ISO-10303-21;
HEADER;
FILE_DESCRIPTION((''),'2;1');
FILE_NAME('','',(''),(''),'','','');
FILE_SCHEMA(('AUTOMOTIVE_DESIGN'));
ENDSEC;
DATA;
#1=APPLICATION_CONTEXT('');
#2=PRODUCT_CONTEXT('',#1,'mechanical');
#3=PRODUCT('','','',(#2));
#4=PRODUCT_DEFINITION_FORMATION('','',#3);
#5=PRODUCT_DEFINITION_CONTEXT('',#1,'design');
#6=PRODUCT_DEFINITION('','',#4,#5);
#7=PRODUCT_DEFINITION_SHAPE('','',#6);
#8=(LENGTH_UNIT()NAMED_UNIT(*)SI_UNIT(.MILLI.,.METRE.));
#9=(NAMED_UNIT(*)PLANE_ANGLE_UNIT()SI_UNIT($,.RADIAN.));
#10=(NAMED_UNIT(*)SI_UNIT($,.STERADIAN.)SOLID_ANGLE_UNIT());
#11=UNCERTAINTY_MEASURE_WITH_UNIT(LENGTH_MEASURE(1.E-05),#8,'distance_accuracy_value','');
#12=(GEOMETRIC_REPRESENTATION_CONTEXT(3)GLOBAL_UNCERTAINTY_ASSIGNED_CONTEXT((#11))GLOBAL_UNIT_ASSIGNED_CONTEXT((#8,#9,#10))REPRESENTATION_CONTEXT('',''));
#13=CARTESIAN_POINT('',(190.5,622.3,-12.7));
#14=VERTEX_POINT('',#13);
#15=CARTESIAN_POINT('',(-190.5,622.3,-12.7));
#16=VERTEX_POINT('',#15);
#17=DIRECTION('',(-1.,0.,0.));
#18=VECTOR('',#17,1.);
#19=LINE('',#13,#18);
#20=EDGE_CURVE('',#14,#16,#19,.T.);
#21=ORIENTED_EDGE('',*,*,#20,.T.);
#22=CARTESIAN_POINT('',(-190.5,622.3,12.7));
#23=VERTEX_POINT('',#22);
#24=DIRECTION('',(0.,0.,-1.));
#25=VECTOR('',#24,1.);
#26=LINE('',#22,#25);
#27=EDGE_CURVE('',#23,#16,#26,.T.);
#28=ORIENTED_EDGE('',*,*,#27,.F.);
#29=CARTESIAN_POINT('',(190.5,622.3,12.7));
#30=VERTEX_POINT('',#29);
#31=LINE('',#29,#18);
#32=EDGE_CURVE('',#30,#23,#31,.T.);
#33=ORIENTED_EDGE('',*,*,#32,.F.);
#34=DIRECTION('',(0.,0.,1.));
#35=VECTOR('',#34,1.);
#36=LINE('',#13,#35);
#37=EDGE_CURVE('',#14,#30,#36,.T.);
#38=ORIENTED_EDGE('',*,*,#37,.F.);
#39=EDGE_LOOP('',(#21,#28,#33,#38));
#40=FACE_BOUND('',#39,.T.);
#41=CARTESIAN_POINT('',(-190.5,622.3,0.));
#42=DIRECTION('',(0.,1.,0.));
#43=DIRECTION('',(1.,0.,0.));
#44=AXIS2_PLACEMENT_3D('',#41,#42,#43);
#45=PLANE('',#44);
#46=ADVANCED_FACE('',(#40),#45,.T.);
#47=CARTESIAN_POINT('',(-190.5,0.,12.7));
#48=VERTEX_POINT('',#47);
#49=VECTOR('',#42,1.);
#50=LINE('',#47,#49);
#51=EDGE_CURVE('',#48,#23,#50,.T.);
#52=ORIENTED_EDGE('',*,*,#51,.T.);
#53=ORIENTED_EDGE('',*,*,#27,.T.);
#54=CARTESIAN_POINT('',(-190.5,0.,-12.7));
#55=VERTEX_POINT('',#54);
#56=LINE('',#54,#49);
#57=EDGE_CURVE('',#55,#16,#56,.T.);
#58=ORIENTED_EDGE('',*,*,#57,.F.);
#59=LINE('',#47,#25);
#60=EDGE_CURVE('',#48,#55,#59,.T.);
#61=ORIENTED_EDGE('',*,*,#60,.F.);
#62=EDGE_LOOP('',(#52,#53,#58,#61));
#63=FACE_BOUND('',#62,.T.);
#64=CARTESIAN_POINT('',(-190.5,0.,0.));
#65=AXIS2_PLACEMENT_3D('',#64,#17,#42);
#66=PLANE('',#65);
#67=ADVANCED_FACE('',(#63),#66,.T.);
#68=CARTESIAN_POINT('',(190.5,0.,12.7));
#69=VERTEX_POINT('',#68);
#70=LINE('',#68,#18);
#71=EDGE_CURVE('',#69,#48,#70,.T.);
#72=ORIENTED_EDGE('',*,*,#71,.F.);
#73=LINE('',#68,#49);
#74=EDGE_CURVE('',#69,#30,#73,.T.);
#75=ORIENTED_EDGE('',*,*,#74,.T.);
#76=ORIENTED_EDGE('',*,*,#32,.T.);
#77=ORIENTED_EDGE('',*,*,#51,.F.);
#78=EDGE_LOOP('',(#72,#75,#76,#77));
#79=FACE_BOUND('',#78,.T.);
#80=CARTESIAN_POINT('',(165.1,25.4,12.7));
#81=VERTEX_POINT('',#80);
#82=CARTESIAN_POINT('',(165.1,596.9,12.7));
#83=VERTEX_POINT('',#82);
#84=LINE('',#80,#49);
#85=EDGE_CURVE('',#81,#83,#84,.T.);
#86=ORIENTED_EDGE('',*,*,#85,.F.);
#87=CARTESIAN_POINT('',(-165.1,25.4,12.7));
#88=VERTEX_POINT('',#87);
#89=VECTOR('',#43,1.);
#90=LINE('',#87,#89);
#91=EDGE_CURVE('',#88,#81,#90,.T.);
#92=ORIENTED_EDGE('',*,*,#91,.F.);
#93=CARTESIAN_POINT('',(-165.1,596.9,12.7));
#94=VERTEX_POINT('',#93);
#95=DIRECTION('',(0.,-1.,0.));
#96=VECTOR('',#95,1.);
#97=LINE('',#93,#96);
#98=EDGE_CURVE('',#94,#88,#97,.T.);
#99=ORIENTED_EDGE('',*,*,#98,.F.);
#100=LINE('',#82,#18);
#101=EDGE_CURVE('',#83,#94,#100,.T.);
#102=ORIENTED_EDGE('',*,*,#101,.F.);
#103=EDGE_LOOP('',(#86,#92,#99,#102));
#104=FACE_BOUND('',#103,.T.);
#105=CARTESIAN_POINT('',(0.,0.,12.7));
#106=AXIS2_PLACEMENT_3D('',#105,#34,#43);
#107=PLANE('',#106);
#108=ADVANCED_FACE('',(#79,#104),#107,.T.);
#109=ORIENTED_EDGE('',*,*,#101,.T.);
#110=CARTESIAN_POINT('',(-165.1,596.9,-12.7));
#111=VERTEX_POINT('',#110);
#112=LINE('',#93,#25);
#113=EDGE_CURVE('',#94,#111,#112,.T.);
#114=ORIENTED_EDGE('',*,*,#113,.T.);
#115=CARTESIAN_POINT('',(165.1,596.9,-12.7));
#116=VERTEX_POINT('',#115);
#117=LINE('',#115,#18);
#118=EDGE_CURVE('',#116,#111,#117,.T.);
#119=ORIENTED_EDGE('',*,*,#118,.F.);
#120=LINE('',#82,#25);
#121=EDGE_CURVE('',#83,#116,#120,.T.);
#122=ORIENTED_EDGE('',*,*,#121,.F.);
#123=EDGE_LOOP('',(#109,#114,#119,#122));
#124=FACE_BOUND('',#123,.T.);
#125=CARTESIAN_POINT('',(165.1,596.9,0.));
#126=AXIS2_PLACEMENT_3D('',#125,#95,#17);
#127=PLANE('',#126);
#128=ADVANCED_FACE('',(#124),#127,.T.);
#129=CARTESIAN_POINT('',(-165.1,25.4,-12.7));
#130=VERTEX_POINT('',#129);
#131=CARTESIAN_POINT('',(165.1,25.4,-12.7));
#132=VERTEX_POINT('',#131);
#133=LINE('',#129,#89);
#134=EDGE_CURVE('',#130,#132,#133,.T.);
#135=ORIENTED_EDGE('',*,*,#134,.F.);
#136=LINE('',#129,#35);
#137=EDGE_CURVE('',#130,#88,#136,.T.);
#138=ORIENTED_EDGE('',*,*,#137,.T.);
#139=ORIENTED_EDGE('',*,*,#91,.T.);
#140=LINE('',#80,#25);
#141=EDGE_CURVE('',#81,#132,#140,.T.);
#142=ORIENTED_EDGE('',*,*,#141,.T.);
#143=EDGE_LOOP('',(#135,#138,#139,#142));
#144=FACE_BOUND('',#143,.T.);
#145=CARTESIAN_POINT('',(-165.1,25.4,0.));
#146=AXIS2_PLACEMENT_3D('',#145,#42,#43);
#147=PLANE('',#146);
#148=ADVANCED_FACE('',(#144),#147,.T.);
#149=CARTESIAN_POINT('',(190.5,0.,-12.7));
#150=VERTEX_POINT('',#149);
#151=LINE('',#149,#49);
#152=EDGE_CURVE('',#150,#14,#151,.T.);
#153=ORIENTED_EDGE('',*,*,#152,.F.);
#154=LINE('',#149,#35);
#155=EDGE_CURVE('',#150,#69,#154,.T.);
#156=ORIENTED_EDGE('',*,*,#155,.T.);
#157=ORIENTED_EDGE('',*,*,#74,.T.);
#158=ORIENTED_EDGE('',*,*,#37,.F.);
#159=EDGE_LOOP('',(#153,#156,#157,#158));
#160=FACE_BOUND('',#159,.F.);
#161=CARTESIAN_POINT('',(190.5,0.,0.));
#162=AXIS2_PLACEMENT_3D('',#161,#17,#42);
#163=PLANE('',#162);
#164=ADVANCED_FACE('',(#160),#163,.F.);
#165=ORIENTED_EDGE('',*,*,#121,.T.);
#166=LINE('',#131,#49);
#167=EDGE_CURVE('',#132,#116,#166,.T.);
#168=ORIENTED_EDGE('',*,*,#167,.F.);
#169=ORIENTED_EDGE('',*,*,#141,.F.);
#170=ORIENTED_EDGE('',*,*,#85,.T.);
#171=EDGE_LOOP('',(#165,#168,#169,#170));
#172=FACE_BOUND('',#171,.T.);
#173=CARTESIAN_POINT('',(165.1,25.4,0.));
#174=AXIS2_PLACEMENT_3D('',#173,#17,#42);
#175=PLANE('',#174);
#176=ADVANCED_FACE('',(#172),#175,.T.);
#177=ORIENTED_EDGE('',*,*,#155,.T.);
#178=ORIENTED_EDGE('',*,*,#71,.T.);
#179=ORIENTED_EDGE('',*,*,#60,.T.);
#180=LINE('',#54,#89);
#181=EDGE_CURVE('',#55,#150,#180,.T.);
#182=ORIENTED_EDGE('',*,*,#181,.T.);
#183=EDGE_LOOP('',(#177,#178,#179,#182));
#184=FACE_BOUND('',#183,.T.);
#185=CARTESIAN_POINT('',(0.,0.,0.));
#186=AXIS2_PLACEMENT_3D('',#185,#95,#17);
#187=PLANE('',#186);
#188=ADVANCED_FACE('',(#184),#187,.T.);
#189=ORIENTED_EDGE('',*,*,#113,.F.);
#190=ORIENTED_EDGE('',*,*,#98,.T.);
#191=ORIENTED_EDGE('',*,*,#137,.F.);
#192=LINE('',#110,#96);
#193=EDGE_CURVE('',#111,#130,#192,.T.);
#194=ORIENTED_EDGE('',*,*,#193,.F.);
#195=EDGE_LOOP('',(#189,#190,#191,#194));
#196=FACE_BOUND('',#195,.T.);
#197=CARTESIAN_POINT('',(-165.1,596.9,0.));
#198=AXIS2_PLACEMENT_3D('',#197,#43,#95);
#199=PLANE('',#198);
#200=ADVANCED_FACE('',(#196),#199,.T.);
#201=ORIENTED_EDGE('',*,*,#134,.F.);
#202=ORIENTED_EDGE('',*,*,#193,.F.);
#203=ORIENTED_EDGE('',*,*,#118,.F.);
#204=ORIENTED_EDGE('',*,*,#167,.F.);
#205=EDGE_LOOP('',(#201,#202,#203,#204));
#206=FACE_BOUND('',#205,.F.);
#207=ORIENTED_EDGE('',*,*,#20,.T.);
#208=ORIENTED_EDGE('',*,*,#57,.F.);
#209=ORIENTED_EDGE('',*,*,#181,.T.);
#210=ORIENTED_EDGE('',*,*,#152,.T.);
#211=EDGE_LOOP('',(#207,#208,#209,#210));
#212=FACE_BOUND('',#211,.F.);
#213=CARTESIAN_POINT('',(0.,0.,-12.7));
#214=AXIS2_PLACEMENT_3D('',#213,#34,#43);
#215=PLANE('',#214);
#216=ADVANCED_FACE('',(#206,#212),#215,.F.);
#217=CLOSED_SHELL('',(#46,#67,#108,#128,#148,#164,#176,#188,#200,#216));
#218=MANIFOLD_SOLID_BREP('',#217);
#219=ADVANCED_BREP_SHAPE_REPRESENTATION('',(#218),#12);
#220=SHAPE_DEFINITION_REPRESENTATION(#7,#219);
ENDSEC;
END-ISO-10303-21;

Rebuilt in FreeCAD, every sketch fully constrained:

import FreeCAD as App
import Part
import Sketcher
from FreeCAD import Vector
Q = App.Units.Quantity

doc = App.newDocument("Part")
body = doc.addObject("PartDesign::Body", "Body")

# Sketch on XY plane
sketch1 = doc.addObject("Sketcher::SketchObject", "Sketch")
body.addObject(sketch1)
sketch1.AttachmentSupport = (doc.XY_Plane, [""])
sketch1.MapMode = "FlatFace"
sketch1.addGeometry(Part.LineSegment(Vector(-190, 0, 0), Vector(190, 0, 0)), False)
sketch1.addGeometry(Part.LineSegment(Vector(190, 0, 0), Vector(190, 622, 0)), False)
sketch1.addGeometry(Part.LineSegment(Vector(190, 622, 0), Vector(-190, 622, 0)), False)
sketch1.addGeometry(Part.LineSegment(Vector(-190, 622, 0), Vector(-190, 0, 0)), False)
sketch1.addGeometry(Part.LineSegment(Vector(165, 25, 0), Vector(-165, 25, 0)), False)
sketch1.addGeometry(Part.LineSegment(Vector(-165, 25, 0), Vector(-165, 597, 0)), False)
sketch1.addGeometry(Part.LineSegment(Vector(-165, 597, 0), Vector(165, 597, 0)), False)
sketch1.addGeometry(Part.LineSegment(Vector(165, 597, 0), Vector(165, 25, 0)), False)
sketch1.addConstraint(Sketcher.Constraint("Coincident", 0, 2, 1, 1))
sketch1.addConstraint(Sketcher.Constraint("Coincident", 1, 2, 2, 1))
sketch1.addConstraint(Sketcher.Constraint("Coincident", 2, 2, 3, 1))
sketch1.addConstraint(Sketcher.Constraint("Coincident", 3, 2, 0, 1))
sketch1.addConstraint(Sketcher.Constraint("Coincident", 4, 2, 5, 1))
sketch1.addConstraint(Sketcher.Constraint("Coincident", 5, 2, 6, 1))
sketch1.addConstraint(Sketcher.Constraint("Coincident", 6, 2, 7, 1))
sketch1.addConstraint(Sketcher.Constraint("Coincident", 7, 2, 4, 1))
sketch1.addConstraint(Sketcher.Constraint("Horizontal", 0))
sketch1.addConstraint(Sketcher.Constraint("Vertical", 1))
sketch1.addConstraint(Sketcher.Constraint("Horizontal", 2))
sketch1.addConstraint(Sketcher.Constraint("Vertical", 3))
sketch1.addConstraint(Sketcher.Constraint("Horizontal", 4))
sketch1.addConstraint(Sketcher.Constraint("Vertical", 5))
sketch1.addConstraint(Sketcher.Constraint("Horizontal", 6))
sketch1.addConstraint(Sketcher.Constraint("Vertical", 7))
sketch1.addConstraint(Sketcher.Constraint("Symmetric", 0, 2, 3, 2, -1, 1))
sketch1.addConstraint(Sketcher.Constraint("DistanceX", 0, 1, 0, 2, Q("15 in")))
sketch1.addConstraint(Sketcher.Constraint("DistanceY", 1, 1, 1, 2, Q("24.5 in")))
sketch1.addConstraint(Sketcher.Constraint("DistanceY", -1, 1, 4, 2, Q("1 in")))
sketch1.addConstraint(Sketcher.Constraint("DistanceX", 3, 2, 4, 2, Q("1 in")))
sketch1.addConstraint(Sketcher.Constraint("DistanceY", 5, 2, 2, 2, Q("1 in")))
sketch1.addConstraint(Sketcher.Constraint("DistanceX", 6, 2, 1, 2, Q("1 in")))
pad1 = doc.addObject("PartDesign::Pad", "Pad")
body.addObject(pad1)
pad1.Profile = sketch1
pad1.Length = Q("1 in")
pad1.Midplane = True

doc.recompute()
